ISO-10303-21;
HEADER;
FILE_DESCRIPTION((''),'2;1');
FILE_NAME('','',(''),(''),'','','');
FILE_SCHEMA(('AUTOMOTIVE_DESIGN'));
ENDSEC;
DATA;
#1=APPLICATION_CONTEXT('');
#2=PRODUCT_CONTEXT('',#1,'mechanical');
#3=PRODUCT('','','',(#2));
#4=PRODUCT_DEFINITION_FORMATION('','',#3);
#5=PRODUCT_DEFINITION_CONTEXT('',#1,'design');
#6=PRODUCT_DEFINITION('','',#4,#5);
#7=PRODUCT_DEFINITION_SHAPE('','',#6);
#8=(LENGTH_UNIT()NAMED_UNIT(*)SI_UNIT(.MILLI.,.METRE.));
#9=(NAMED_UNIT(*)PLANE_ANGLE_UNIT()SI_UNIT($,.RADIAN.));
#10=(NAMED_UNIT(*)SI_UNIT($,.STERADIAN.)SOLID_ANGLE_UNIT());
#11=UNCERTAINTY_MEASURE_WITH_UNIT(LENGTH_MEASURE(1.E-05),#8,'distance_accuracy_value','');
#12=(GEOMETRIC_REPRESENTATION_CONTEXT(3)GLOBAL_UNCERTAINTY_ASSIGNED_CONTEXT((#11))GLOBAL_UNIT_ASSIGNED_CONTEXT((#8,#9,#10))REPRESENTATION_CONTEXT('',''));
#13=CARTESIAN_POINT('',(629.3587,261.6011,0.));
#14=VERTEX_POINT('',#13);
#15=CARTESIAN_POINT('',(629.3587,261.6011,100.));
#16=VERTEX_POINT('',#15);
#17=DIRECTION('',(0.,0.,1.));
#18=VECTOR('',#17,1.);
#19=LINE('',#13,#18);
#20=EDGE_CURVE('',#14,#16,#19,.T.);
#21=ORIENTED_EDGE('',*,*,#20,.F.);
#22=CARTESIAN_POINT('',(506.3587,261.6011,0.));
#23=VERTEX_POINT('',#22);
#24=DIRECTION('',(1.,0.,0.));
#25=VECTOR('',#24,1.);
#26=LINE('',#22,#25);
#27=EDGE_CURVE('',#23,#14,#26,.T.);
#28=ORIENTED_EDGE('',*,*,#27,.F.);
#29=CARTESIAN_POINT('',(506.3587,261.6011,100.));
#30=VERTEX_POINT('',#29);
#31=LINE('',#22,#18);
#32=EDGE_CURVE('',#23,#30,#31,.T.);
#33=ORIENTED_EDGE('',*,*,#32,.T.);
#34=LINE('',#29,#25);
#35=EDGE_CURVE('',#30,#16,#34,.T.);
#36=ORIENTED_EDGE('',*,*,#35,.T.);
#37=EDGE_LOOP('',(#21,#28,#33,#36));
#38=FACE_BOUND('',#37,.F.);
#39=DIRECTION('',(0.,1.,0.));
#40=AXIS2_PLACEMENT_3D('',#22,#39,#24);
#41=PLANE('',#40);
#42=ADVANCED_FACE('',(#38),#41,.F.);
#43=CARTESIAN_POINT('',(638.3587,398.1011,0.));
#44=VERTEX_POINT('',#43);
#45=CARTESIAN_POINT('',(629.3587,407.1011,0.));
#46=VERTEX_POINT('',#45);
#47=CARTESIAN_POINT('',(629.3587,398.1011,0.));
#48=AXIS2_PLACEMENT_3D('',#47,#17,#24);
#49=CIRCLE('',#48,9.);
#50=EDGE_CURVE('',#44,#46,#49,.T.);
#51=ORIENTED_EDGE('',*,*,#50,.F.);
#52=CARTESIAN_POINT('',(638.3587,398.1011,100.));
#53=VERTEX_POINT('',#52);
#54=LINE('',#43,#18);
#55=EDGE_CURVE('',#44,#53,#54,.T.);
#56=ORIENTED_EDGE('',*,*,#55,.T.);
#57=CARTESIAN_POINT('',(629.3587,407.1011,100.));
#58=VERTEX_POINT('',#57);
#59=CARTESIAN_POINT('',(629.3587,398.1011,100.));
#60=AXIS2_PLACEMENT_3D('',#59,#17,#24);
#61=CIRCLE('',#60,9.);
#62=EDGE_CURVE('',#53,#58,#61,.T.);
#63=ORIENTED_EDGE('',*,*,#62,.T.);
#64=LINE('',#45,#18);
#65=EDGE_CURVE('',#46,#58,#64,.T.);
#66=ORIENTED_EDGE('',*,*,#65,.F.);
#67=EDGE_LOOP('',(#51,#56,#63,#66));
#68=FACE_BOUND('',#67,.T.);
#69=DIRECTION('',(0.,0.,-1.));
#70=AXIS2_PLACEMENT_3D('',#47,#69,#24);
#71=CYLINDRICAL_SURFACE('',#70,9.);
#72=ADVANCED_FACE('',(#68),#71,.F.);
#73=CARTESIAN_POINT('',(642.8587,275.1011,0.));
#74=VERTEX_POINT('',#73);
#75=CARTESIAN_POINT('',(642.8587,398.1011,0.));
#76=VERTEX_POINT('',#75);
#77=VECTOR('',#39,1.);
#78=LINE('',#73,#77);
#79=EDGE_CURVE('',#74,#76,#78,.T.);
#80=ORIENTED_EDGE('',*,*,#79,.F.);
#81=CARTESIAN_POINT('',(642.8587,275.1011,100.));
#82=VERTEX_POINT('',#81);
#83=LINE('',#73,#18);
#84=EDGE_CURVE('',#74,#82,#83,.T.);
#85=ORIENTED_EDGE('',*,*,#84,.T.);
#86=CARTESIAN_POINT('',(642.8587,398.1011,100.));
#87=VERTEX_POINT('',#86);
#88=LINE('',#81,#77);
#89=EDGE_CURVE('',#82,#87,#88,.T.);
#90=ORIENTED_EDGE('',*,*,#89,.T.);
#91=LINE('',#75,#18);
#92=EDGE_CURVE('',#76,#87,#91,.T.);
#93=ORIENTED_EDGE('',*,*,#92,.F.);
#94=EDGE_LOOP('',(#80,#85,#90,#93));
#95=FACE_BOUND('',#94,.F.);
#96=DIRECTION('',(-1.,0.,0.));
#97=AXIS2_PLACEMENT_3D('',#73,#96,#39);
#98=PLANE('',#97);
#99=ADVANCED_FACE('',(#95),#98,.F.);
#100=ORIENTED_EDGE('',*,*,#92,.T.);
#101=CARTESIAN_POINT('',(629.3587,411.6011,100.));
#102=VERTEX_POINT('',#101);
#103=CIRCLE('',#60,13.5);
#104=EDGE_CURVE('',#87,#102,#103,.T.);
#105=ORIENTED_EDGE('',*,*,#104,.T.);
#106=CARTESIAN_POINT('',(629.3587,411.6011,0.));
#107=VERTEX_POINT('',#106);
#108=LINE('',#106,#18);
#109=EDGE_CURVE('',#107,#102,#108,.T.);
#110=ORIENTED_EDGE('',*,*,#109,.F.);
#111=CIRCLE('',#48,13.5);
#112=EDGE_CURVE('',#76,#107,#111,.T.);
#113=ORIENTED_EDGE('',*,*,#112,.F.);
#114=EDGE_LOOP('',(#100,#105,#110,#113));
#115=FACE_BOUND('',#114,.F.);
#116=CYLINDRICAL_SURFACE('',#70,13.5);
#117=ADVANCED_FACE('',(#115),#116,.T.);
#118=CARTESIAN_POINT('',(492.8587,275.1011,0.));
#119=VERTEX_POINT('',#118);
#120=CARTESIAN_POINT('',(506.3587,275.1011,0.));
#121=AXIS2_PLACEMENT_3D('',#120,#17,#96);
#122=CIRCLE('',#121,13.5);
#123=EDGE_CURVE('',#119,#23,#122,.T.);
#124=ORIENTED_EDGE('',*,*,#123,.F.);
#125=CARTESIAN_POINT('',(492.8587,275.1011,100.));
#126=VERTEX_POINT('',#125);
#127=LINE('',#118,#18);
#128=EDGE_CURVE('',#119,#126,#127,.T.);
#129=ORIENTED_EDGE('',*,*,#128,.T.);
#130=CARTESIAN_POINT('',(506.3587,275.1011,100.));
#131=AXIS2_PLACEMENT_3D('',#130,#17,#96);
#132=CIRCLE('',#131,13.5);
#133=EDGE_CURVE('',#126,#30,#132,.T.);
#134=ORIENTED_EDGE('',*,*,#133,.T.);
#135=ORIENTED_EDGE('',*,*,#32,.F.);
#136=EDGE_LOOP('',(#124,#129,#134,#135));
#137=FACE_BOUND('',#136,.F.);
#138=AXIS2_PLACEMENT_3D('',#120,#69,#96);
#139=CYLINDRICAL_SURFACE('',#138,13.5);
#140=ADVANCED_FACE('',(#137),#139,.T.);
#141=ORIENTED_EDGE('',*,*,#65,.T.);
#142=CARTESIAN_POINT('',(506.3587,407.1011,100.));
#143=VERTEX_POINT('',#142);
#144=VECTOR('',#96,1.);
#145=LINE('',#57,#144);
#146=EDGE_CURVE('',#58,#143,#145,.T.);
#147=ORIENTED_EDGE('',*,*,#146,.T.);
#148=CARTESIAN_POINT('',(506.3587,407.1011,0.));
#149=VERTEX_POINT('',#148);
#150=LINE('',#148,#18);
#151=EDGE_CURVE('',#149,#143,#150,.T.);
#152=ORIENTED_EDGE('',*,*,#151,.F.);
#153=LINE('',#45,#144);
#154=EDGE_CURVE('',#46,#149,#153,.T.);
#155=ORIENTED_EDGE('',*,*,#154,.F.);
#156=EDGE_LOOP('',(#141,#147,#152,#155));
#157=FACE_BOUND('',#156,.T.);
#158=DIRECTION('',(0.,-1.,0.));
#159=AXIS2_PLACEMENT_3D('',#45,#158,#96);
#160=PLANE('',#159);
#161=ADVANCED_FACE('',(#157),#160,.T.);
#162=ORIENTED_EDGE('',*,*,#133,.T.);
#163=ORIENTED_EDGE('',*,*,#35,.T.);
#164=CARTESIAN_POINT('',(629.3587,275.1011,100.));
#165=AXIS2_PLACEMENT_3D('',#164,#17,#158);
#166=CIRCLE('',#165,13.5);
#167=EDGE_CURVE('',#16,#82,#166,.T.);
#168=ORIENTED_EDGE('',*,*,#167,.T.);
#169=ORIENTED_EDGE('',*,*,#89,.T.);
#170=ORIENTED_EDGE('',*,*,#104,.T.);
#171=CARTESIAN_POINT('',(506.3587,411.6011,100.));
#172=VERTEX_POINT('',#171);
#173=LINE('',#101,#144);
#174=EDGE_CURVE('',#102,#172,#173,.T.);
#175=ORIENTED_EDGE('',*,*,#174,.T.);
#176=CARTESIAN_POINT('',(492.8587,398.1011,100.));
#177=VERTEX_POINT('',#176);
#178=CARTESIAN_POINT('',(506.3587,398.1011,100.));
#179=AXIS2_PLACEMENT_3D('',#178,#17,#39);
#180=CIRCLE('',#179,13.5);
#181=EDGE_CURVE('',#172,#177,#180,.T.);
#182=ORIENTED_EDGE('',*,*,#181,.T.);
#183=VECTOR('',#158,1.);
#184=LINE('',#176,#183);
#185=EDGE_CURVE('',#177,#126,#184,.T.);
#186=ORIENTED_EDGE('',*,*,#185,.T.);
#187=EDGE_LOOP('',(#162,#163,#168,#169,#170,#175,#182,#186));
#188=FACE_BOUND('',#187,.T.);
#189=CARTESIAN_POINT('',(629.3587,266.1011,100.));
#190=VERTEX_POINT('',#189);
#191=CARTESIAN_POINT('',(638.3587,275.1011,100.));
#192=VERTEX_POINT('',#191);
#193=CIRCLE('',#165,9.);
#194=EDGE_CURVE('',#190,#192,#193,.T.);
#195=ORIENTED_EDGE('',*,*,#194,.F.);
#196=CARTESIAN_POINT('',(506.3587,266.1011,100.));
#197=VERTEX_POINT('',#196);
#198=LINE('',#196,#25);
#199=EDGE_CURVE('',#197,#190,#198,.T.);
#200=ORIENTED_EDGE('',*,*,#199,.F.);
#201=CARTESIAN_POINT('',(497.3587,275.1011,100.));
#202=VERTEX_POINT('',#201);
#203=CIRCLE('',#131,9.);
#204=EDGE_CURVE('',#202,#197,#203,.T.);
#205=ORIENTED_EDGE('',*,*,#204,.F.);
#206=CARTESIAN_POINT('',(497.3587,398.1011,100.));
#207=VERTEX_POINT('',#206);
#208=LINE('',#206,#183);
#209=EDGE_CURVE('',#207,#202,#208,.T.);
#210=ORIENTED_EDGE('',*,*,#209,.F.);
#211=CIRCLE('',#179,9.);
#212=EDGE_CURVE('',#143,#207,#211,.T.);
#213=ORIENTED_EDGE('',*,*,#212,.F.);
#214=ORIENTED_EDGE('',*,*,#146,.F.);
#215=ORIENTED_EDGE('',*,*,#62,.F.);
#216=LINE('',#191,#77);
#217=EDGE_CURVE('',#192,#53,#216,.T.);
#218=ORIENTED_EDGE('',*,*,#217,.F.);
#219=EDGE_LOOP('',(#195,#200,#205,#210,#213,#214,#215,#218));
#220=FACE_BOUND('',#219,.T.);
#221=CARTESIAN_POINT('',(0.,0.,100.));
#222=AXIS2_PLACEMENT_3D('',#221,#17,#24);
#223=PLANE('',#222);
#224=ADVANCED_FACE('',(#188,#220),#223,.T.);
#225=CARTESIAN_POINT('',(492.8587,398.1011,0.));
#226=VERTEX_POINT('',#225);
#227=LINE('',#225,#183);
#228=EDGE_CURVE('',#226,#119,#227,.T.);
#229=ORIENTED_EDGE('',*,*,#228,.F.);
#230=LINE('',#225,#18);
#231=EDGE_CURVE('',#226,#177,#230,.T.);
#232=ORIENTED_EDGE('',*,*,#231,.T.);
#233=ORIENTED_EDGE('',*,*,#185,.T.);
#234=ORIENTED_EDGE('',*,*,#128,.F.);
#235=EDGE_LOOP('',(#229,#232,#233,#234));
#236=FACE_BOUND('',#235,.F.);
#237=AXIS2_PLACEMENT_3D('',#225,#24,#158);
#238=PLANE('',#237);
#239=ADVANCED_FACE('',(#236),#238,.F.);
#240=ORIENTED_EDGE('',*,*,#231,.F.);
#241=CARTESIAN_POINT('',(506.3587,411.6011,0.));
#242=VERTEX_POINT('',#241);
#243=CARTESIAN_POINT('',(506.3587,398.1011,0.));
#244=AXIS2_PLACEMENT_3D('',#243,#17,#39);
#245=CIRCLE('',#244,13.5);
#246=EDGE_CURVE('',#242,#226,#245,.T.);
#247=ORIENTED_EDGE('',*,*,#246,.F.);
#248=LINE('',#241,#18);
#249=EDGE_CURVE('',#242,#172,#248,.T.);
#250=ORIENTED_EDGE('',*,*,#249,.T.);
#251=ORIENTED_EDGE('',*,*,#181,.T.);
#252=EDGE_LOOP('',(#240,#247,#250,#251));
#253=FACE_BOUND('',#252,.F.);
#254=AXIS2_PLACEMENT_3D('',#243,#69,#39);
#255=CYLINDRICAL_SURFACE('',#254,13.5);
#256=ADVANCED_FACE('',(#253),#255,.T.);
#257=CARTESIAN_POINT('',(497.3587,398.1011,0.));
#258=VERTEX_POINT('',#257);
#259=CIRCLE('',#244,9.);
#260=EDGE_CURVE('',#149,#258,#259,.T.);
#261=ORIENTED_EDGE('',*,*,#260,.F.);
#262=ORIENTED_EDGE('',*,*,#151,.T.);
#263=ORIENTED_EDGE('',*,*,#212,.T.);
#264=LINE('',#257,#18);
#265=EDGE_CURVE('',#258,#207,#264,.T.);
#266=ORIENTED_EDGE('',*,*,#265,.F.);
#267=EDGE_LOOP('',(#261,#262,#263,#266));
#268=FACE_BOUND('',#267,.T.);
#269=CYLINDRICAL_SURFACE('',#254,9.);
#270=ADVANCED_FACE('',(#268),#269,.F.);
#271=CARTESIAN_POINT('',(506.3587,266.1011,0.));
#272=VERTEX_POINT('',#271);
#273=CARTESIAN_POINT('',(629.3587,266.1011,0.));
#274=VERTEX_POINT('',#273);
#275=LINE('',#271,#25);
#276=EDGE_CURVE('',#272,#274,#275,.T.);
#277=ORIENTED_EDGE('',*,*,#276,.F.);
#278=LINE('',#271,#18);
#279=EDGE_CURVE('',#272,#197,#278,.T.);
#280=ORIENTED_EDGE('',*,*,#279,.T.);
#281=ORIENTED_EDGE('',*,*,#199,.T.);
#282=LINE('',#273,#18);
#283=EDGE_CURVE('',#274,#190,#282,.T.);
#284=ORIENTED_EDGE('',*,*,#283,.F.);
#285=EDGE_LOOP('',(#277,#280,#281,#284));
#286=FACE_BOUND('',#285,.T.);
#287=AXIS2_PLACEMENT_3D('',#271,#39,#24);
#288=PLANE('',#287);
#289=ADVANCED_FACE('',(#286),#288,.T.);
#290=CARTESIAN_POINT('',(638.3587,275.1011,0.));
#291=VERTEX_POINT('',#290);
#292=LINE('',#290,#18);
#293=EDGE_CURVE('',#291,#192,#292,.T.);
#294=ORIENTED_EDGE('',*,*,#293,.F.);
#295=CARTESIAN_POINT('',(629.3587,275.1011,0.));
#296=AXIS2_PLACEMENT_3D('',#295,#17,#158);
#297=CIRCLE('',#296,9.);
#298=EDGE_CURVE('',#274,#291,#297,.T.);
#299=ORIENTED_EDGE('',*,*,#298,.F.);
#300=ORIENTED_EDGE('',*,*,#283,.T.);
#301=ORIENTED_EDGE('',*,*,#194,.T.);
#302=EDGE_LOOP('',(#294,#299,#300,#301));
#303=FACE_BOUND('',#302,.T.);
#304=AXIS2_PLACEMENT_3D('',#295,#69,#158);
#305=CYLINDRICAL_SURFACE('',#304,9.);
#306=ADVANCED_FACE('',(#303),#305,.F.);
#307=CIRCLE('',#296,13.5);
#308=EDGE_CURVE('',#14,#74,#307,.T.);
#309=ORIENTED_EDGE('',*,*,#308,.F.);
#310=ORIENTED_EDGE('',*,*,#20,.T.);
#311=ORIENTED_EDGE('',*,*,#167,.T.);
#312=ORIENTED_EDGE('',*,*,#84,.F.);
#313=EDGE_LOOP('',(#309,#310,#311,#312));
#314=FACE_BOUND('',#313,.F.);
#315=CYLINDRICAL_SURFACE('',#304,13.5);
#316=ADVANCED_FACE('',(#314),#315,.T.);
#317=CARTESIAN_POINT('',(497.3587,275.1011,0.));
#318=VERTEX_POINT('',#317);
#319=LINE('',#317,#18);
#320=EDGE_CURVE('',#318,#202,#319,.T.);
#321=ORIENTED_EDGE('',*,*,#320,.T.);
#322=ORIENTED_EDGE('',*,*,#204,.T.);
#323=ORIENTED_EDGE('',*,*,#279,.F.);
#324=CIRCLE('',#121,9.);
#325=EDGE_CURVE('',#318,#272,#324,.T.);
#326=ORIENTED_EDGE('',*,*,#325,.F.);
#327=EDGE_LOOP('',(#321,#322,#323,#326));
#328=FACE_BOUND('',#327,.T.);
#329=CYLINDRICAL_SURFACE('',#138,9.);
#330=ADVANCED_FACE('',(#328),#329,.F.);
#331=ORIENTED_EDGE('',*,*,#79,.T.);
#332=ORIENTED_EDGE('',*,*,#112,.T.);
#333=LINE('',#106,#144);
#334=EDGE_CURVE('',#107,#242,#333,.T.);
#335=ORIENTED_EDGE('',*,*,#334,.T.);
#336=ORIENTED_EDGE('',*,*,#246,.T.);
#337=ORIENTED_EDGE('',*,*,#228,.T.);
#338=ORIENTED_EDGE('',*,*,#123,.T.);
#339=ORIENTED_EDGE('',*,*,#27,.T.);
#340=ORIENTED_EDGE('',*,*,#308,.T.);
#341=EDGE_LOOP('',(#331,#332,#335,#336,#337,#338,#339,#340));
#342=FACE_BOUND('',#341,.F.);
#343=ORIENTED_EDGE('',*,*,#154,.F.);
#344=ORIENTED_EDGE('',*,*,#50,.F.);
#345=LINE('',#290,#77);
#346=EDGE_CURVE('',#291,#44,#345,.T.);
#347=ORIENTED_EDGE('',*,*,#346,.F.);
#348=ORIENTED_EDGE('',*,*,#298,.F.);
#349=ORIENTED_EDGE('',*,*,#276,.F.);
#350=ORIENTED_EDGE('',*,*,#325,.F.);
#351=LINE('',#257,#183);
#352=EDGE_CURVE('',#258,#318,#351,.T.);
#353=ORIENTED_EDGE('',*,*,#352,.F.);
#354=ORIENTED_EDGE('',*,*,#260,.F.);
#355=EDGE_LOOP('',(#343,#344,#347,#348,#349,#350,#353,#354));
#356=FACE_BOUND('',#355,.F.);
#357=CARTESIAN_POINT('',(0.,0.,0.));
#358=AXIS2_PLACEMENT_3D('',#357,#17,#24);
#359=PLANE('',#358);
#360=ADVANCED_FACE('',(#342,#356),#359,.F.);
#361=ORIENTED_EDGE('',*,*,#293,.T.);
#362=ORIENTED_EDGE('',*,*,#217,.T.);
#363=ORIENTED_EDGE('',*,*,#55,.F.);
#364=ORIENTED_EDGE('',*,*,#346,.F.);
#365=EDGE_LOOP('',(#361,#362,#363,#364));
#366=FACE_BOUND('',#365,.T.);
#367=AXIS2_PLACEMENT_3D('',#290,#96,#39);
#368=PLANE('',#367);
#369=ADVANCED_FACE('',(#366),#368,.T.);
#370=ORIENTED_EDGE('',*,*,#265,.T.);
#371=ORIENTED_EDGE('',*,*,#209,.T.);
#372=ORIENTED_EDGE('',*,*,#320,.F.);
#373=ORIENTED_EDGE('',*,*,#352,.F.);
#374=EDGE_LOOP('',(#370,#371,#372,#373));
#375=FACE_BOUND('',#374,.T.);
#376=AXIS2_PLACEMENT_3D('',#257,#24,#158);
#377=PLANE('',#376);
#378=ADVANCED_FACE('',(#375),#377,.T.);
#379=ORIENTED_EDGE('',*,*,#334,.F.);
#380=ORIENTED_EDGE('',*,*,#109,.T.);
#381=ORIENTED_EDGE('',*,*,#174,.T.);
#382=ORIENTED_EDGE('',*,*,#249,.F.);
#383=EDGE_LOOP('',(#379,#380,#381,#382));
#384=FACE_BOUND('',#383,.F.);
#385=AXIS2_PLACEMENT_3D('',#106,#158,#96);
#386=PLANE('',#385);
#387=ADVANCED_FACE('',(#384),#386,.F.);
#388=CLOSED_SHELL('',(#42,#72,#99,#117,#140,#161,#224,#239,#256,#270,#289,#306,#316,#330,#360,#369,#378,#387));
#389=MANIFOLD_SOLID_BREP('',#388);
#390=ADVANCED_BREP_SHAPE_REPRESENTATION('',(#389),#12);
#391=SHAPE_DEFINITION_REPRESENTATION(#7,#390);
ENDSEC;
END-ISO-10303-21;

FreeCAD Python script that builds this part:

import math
import FreeCAD as App
import Part
import Sketcher

V = App.Vector

doc = App.newDocument("Part")
body = doc.addObject("PartDesign::Body", "Body")

sketch1 = body.newObject("Sketcher::SketchObject", "Sketch")
sketch1.AttachmentSupport = (doc.getObject("XY_Plane"), [""])
sketch1.MapMode = "FlatFace"
sketch1.addGeometry([
    Part.LineSegment(V(629, 412, 0), V(506, 412, 0)),
    Part.ArcOfCircle(Part.Circle(V(506, 398, 0), V(0, 0, 1), 14), math.radians(90), math.radians(180)),
    Part.LineSegment(V(493, 398, 0), V(493, 275, 0)),
    Part.ArcOfCircle(Part.Circle(V(506, 275, 0), V(0, 0, 1), 14), math.radians(180), math.radians(270)),
    Part.LineSegment(V(506, 262, 0), V(629, 262, 0)),
    Part.ArcOfCircle(Part.Circle(V(629, 275, 0), V(0, 0, 1), 14), math.radians(-90), math.radians(0)),
    Part.LineSegment(V(643, 275, 0), V(643, 398, 0)),
    Part.ArcOfCircle(Part.Circle(V(629, 398, 0), V(0, 0, 1), 14), math.radians(0), math.radians(90)),
    Part.ArcOfCircle(Part.Circle(V(506, 398, 0), V(0, 0, 1), 9), math.radians(90), math.radians(180)),
    Part.LineSegment(V(506, 407, 0), V(629, 407, 0)),
    Part.ArcOfCircle(Part.Circle(V(629, 398, 0), V(0, 0, 1), 9), math.radians(0), math.radians(90)),
    Part.LineSegment(V(638, 398, 0), V(638, 275, 0)),
    Part.ArcOfCircle(Part.Circle(V(629, 275, 0), V(0, 0, 1), 9), math.radians(-90), math.radians(0)),
    Part.LineSegment(V(629, 266, 0), V(506, 266, 0)),
    Part.ArcOfCircle(Part.Circle(V(506, 275, 0), V(0, 0, 1), 9), math.radians(180), math.radians(270)),
    Part.LineSegment(V(497, 275, 0), V(497, 398, 0)),
], False)
sketch1.addConstraint([
    Sketcher.Constraint("Tangent", 0, 2, 1, 1),
    Sketcher.Constraint("Tangent", 1, 2, 2, 1),
    Sketcher.Constraint("Tangent", 2, 2, 3, 1),
    Sketcher.Constraint("Tangent", 3, 2, 4, 1),
    Sketcher.Constraint("Tangent", 4, 2, 5, 1),
    Sketcher.Constraint("Tangent", 5, 2, 6, 1),
    Sketcher.Constraint("Tangent", 6, 2, 7, 1),
    Sketcher.Constraint("Tangent", 7, 2, 0, 1),
    Sketcher.Constraint("Tangent", 8, 1, 9, 1),
    Sketcher.Constraint("Tangent", 9, 2, 10, 2),
    Sketcher.Constraint("Tangent", 10, 1, 11, 1),
    Sketcher.Constraint("Tangent", 11, 2, 12, 2),
    Sketcher.Constraint("Tangent", 12, 1, 13, 1),
    Sketcher.Constraint("Tangent", 13, 2, 14, 2),
    Sketcher.Constraint("Tangent", 14, 1, 15, 1),
    Sketcher.Constraint("Tangent", 15, 2, 8, 2),
    Sketcher.Constraint("Horizontal", 0),
    Sketcher.Constraint("Vertical", 2),
    Sketcher.Constraint("Horizontal", 4),
    Sketcher.Constraint("Vertical", 6),
    Sketcher.Constraint("Horizontal", 9),
    Sketcher.Constraint("Vertical", 11),
    Sketcher.Constraint("Horizontal", 13),
    Sketcher.Constraint("Vertical", 15),
    Sketcher.Constraint("Coincident", 8, 3, 1, 3),
    Sketcher.Constraint("Coincident", 10, 3, 7, 3),
    Sketcher.Constraint("Coincident", 12, 3, 5, 3),
    Sketcher.Constraint("Equal", 1, 3),
    Sketcher.Constraint("Equal", 3, 5),
    Sketcher.Constraint("Equal", 5, 7),
    Sketcher.Constraint("Equal", 12, 14),
    Sketcher.Constraint("Equal", 13, 2),
    Sketcher.Constraint("Radius", 8, 9.0),
    Sketcher.Constraint("Radius", 1, 13.5),
    Sketcher.Constraint("DistanceX", 0, 2, 0, 1, 123.0),
    Sketcher.Constraint("DistanceY", -1, 1, 1, 3, 398.101),
    Sketcher.Constraint("DistanceX", -1, 1, 1, 3, 506.3587),
])
pad1 = body.newObject("PartDesign::Pad", "Pad")
pad1.Profile = sketch1
pad1.Length = 100

doc.recompute()
